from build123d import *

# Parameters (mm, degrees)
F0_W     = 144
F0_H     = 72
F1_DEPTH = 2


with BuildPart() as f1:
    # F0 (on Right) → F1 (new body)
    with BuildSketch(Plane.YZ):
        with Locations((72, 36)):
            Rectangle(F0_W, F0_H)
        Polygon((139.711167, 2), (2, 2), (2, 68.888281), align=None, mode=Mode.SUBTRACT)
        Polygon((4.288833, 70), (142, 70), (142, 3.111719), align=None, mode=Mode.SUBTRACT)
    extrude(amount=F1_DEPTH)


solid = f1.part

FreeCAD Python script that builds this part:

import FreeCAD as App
import Part
import Sketcher

V = App.Vector
Q = App.Units.Quantity


def add_polygon(sketch, points):
    """Adds a closed chain of lines whose ends are joined by coincident constraints."""
    first, n = sketch.GeometryCount, len(points)
    for a, b in zip(points, points[1:] + points[:1]):
        sketch.addGeometry(Part.LineSegment(App.Vector(*a, 0), App.Vector(*b, 0)), False)
    for i in range(n):
        sketch.addConstraint(Sketcher.Constraint("Coincident", first + i, 2, first + (i + 1) % n, 1))

doc = App.newDocument("Part")
body = doc.addObject("PartDesign::Body", "Body")

# Sketch on YZ plane
sketch1 = body.newObject("Sketcher::SketchObject", "Sketch")
sketch1.AttachmentSupport = (doc.getObject("YZ_Plane"), [""])
sketch1.MapMode = "FlatFace"
add_polygon(sketch1, [(0, 72), (0, 0), (144, 0), (144, 72)])  # lines 0-3
add_polygon(sketch1, [(2, 69), (140, 2), (2, 2)])  # lines 4-6
add_polygon(sketch1, [(142, 3), (4, 70), (142, 70)])  # lines 7-9
sketch1.addConstraint([
    Sketcher.Constraint("Vertical", 0),
    Sketcher.Constraint("Horizontal", 1),
    Sketcher.Constraint("Vertical", 2),
    Sketcher.Constraint("Horizontal", 3),
    Sketcher.Constraint("Horizontal", 5),
    Sketcher.Constraint("Vertical", 6),
    Sketcher.Constraint("Horizontal", 8),
    Sketcher.Constraint("Vertical", 9),
    Sketcher.Constraint("Coincident", 0, 2, -1, 1),
    Sketcher.Constraint("Parallel", 4, 7),
    Sketcher.Constraint("Equal", 5, 8),
    Sketcher.Constraint("DistanceX", 1, 1, 1, 2, Q("144 mm")),
    Sketcher.Constraint("DistanceY", 0, 2, 0, 1, Q("72 mm")),
    Sketcher.Constraint("DistanceY", -1, 1, 4, 2, Q("2 mm")),
    Sketcher.Constraint("DistanceX", -1, 1, 5, 2, Q("2 mm")),
    Sketcher.Constraint("DistanceY", -1, 1, 7, 2, Q("70 mm")),
    Sketcher.Constraint("DistanceX", -1, 1, 8, 2, Q("142 mm")),
    Sketcher.Constraint("DistanceY", 6, 1, 6, 2, Q("66.888281 mm")),
    Sketcher.Constraint("DistanceX", 5, 2, 5, 1, Q("137.711167 mm")),
])
pad1 = body.newObject("PartDesign::Pad", "Pad")
pad1.Profile = sketch1
pad1.Length = 2

doc.recompute()
